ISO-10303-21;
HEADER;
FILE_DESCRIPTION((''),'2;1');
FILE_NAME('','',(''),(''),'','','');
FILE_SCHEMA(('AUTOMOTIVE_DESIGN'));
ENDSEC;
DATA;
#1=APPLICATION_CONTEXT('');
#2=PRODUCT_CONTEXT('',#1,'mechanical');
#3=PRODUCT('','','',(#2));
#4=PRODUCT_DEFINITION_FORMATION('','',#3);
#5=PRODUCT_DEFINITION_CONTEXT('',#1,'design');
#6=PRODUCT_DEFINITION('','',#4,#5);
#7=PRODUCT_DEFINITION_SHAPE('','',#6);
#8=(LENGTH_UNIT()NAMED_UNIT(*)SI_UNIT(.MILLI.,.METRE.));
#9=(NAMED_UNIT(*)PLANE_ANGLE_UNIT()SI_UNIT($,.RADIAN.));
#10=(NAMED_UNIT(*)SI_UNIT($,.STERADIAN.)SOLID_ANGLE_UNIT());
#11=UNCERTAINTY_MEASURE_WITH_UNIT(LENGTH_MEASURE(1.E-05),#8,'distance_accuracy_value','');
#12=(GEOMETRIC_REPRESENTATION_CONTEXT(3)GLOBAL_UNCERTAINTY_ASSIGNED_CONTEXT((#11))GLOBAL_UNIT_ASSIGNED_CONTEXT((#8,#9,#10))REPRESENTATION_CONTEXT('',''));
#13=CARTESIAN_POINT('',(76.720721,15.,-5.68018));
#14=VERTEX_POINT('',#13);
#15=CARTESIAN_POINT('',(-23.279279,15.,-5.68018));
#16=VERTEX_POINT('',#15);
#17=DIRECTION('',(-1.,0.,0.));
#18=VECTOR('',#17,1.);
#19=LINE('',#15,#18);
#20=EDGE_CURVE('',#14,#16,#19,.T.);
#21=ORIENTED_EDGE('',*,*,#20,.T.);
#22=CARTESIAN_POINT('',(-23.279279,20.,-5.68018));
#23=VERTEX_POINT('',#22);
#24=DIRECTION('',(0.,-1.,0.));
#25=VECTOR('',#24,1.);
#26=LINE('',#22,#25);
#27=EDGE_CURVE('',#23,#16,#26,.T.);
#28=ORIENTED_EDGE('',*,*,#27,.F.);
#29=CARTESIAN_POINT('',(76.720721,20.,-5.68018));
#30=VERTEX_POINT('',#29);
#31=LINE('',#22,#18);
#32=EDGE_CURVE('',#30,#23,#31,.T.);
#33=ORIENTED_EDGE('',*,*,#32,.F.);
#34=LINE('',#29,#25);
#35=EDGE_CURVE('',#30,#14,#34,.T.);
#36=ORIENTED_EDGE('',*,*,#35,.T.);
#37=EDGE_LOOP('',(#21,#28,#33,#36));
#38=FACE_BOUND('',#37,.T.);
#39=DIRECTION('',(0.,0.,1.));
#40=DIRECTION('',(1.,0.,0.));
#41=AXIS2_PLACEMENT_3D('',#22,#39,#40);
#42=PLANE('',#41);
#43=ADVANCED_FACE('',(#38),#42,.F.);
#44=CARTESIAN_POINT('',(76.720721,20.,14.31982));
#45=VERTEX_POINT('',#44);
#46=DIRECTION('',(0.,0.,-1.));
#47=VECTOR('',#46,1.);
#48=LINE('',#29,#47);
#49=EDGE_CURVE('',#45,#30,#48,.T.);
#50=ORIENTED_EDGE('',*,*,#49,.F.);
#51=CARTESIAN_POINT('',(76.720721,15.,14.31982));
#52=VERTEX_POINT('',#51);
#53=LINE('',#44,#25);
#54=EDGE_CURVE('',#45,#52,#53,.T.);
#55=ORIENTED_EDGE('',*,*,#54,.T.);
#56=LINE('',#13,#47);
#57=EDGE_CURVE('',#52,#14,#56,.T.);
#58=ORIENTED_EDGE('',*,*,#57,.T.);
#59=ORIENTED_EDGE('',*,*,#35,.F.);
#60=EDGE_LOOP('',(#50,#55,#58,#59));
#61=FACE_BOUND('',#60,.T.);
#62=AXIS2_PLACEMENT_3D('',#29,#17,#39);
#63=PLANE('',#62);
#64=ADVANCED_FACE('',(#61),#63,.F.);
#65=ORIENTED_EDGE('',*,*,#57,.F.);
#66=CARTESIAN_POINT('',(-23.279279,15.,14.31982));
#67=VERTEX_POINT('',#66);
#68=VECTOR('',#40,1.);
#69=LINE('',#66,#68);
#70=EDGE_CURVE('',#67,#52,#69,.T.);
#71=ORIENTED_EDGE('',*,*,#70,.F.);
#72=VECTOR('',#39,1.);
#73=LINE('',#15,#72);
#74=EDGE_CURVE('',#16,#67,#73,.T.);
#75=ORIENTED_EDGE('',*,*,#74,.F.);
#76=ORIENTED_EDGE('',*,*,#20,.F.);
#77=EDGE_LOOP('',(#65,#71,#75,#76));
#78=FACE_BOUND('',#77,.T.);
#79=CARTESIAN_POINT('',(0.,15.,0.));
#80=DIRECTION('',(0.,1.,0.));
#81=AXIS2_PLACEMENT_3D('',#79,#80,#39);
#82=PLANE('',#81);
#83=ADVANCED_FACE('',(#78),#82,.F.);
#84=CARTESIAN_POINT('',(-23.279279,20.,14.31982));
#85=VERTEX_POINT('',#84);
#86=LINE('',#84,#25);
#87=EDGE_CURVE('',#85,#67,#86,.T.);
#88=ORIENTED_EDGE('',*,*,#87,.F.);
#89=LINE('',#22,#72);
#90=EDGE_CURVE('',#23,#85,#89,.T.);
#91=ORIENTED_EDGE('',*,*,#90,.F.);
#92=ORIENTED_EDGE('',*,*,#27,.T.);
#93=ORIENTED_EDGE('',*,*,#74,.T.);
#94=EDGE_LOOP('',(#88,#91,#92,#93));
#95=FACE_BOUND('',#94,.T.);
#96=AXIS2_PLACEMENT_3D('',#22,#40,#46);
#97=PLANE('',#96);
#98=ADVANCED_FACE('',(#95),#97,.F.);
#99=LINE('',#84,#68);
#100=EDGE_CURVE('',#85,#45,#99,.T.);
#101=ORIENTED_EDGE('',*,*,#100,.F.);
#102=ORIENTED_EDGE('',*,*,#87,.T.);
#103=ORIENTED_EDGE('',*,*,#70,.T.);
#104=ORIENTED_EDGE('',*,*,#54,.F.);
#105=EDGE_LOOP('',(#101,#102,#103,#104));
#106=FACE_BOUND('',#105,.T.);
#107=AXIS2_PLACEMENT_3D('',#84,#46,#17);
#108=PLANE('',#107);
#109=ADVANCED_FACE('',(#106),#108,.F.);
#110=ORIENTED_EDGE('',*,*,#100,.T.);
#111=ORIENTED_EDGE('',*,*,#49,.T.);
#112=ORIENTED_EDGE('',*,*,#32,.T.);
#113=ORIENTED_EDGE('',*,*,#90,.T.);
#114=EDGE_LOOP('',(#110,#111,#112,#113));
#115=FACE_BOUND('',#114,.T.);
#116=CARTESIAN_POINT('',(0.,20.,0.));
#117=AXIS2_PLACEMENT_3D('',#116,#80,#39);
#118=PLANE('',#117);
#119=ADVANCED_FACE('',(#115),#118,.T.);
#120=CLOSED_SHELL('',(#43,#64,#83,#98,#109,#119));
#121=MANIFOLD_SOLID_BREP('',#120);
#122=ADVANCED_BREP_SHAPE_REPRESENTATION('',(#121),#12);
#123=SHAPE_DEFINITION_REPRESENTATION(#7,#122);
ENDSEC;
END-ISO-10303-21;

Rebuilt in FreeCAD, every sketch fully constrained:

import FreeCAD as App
import Part
import Sketcher
from FreeCAD import Vector
Q = App.Units.Quantity


def add_polygon(sketch, points):
    """Adds a closed chain of lines whose ends are joined by coincident constraints."""
    first, n = sketch.GeometryCount, len(points)
    for a, b in zip(points, points[1:] + points[:1]):
        sketch.addGeometry(Part.LineSegment(App.Vector(*a, 0), App.Vector(*b, 0)), False)
    for i in range(n):
        sketch.addConstraint(Sketcher.Constraint("Coincident", first + i, 2, first + (i + 1) % n, 1))

doc = App.newDocument("Part")
body = doc.addObject("PartDesign::Body", "Body")

# Sketch on XZ plane
sketch1 = body.newObject("Sketcher::SketchObject", "Sketch")
sketch1.AttachmentSupport = (doc.getObject("XZ_Plane"), [""])
sketch1.MapMode = "FlatFace"
sketch1.AttachmentOffset = App.Placement(Vector(0, 0, -15), App.Rotation())
add_polygon(sketch1, [(-23.279279, -5.68018), (-23.279279, 14.31982), (76.720721, 14.31982), (76.720721, -5.68018)])  # lines 0-3
sketch1.addConstraint(Sketcher.Constraint("Vertical", 0))
sketch1.addConstraint(Sketcher.Constraint("Horizontal", 1))
sketch1.addConstraint(Sketcher.Constraint("Vertical", 2))
sketch1.addConstraint(Sketcher.Constraint("Horizontal", 3))
sketch1.addConstraint(Sketcher.Constraint("DistanceX", 1, 1, 1, 2, Q("100 mm")))
sketch1.addConstraint(Sketcher.Constraint("DistanceY", 0, 1, 0, 2, Q("20 mm")))
sketch1.addConstraint(Sketcher.Constraint("DistanceX", 0, 2, -1, 1, Q("23.279279 mm")))
sketch1.addConstraint(Sketcher.Constraint("DistanceY", -1, 1, 0, 2, Q("14.31982 mm")))
pad1 = body.newObject("PartDesign::Pad", "Pad")
pad1.Profile = sketch1
pad1.Length = 5
pad1.Reversed = True

doc.recompute()
